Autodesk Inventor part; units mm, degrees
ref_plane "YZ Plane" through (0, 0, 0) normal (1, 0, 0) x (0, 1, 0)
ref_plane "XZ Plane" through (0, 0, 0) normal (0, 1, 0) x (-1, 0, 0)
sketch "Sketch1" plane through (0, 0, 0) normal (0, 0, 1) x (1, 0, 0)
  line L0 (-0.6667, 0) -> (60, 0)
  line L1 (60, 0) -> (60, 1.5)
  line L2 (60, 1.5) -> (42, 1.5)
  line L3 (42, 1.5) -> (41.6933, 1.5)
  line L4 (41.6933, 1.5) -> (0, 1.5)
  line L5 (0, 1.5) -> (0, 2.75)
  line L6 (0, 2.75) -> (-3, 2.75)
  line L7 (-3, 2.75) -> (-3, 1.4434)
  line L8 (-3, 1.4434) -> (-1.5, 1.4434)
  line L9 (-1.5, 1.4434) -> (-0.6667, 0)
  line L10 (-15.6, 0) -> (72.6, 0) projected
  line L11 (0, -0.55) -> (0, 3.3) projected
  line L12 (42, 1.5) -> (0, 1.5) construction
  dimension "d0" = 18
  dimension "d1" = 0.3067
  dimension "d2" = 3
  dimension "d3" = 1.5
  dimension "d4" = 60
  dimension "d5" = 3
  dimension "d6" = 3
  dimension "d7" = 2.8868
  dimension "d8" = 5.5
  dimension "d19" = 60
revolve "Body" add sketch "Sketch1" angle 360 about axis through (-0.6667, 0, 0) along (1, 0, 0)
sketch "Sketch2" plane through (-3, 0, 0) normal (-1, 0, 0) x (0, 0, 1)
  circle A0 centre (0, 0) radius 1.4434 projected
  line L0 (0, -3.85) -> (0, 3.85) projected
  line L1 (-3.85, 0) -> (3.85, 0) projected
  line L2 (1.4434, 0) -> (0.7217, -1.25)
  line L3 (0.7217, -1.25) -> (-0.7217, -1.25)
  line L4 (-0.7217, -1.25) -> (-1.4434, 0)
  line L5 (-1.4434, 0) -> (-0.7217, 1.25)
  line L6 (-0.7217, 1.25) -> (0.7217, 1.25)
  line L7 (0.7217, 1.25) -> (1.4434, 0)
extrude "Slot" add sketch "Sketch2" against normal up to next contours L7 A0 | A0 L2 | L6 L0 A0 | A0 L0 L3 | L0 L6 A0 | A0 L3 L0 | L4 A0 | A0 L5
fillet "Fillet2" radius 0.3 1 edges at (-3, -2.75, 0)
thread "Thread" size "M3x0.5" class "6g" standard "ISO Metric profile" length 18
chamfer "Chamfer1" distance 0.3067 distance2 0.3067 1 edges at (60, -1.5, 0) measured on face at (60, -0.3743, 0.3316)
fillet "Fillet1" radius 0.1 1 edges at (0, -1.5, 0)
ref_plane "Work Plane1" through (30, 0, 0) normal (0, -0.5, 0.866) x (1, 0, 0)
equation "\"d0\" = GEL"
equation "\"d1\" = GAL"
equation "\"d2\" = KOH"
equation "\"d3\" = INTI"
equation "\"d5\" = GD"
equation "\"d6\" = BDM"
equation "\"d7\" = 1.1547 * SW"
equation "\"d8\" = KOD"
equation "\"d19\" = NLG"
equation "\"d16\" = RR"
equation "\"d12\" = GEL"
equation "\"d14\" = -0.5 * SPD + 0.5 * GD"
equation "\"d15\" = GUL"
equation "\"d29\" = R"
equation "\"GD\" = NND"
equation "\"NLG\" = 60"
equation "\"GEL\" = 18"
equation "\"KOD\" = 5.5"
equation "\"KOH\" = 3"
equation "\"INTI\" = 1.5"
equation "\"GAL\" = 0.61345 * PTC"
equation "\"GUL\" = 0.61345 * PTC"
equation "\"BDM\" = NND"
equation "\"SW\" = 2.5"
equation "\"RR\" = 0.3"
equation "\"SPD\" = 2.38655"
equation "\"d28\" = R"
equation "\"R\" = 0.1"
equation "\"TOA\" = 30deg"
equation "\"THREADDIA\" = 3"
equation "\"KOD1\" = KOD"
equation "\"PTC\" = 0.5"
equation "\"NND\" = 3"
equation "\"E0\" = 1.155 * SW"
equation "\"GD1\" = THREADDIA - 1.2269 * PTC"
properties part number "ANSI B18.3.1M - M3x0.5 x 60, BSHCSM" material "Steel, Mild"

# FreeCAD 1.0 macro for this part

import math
import FreeCAD as App
import Part
import Sketcher
Q = App.Units.Quantity


def edges_at(feature, points):
    """Names of the edges that pass closest to the given points."""
    edges = feature.Shape.Edges
    near = lambda p: min(range(len(edges)), key=lambda i: edges[i].distToShape(Part.Vertex(*p))[0])
    return sorted({f"Edge{near(p) + 1}" for p in points})


def add_polygon(sketch, points):
    """Adds a closed chain of lines whose ends are joined by coincident constraints."""
    first, n = sketch.GeometryCount, len(points)
    for a, b in zip(points, points[1:] + points[:1]):
        sketch.addGeometry(Part.LineSegment(App.Vector(*a, 0), App.Vector(*b, 0)), False)
    for i in range(n):
        sketch.addConstraint(Sketcher.Constraint("Coincident", first + i, 2, first + (i + 1) % n, 1))

doc = App.newDocument("Part")
params = doc.addObject("Spreadsheet::Sheet", "Params")
for row, (alias, value) in enumerate([
    ("sketch1_width", "60 mm"),
    ("sketch1_width2", "3 mm"),
    ("sketch1_width3", "1.5 mm"),
    ("sketch1_height", "1.25 mm"),
    ("revolution_angle", "360 deg"),
    ("fillet_radius", "0.3 mm"),
    ("chamfer_size", "0.3067 mm"),
    ("chamfer_size2", "0.3067 mm"),
    ("fillet2_radius", "0.1 mm"),
], start=1):
    params.set(f"A{row}", alias)
    params.set(f"B{row}", "=" + value)
    params.setAlias(f"B{row}", alias)

body = doc.addObject("PartDesign::Body", "Body")

sketch1 = body.newObject("Sketcher::SketchObject", "Sketch")
sketch1.AttachmentSupport = (doc.getObject("XY_Plane"), [""])
sketch1.MapMode = "FlatFace"
add_polygon(sketch1, [(-1.5, 1.4), (-0.7, 0), (60, 0), (60, 1.5), (0, 1.5), (0, 2.8), (-3, 2.8), (-3, 1.4)])
sketch1.addConstraint([
    Sketcher.Constraint("Horizontal", 1),
    Sketcher.Constraint("Vertical", 2),
    Sketcher.Constraint("Horizontal", 3),
    Sketcher.Constraint("Vertical", 4),
    Sketcher.Constraint("Horizontal", 5),
    Sketcher.Constraint("Vertical", 6),
    Sketcher.Constraint("Horizontal", 7),
    Sketcher.Constraint("PointOnObject", 0, 2, -1),
    Sketcher.Constraint("PointOnObject", 3, 2, -2),
    Sketcher.Constraint("Equal", 7, 2),
    Sketcher.Constraint("DistanceX", 3, 2, 3, 1, Q("60 mm")),
    Sketcher.Constraint("DistanceX", 5, 2, 5, 1, Q("3 mm")),
    Sketcher.Constraint("DistanceX", 7, 1, 7, 2, Q("1.5 mm")),
    Sketcher.Constraint("DistanceY", 4, 1, 4, 2, Q("1.25 mm")),
    Sketcher.Constraint("DistanceX", 1, 1, 1, 2, Q("60.6667 mm")),
    Sketcher.Constraint("DistanceY", 6, 2, 6, 1, Q("1.3066 mm")),
])
sketch1.setExpression("Constraints[18]", "Params.sketch1_width")
sketch1.setExpression("Constraints[19]", "Params.sketch1_width2")
sketch1.setExpression("Constraints[20]", "Params.sketch1_width3")
sketch1.setExpression("Constraints[21]", "Params.sketch1_height")
revolution = body.newObject("PartDesign::Revolution", "Revolution")
revolution.Profile = sketch1
revolution.ReferenceAxis = (sketch1, ["H_Axis"])
revolution.setExpression("Angle", "Params.revolution_angle")

sketch2 = body.newObject("Sketcher::SketchObject", "Sketch001")
sketch2.AttachmentSupport = (doc.getObject("YZ_Plane"), [""])
sketch2.MapMode = "FlatFace"
sketch2.AttachmentOffset = App.Placement(App.Vector(0, 0, -3), App.Rotation())
sketch2.addGeometry([
    Part.LineSegment(App.Vector(1.2, 0.7, 0), App.Vector(0, 1.4, 0)),
    Part.ArcOfCircle(Part.Circle(App.Vector(0, 0, 0), App.Vector(0, 0, 1), 1.4), math.radians(30), math.radians(90)),
    Part.ArcOfCircle(Part.Circle(App.Vector(0, 0, 0), App.Vector(0, 0, 1), 1.4), math.radians(90), math.radians(150)),
    Part.LineSegment(App.Vector(0, 1.4, 0), App.Vector(-1.2, 0.7, 0)),
    Part.ArcOfCircle(Part.Circle(App.Vector(0, 0, 0), App.Vector(0, 0, 1), 1.4), math.radians(-30), math.radians(30)),
    Part.LineSegment(App.Vector(1.2, 0.7, 0), App.Vector(1.2, -0.7, 0)),
    Part.LineSegment(App.Vector(-1.2, 0.7, 0), App.Vector(-1.2, -0.7, 0)),
    Part.ArcOfCircle(Part.Circle(App.Vector(0, 0, 0), App.Vector(0, 0, 1), 1.4), math.radians(150), math.radians(210)),
    Part.LineSegment(App.Vector(-1.2, -0.7, 0), App.Vector(0, -1.4, 0)),
    Part.ArcOfCircle(Part.Circle(App.Vector(0, 0, 0), App.Vector(0, 0, 1), 1.4), math.radians(-150), math.radians(-90)),
    Part.ArcOfCircle(Part.Circle(App.Vector(0, 0, 0), App.Vector(0, 0, 1), 1.4), math.radians(-90), math.radians(-30)),
    Part.LineSegment(App.Vector(0, -1.4, 0), App.Vector(1.2, -0.7, 0)),
], False)
sketch2.addConstraint([
    Sketcher.Constraint("Coincident", 0, 1, 1, 1),
    Sketcher.Constraint("Coincident", 1, 2, 0, 2),
    Sketcher.Constraint("Coincident", 2, 1, 3, 1),
    Sketcher.Constraint("Coincident", 3, 2, 2, 2),
    Sketcher.Constraint("Coincident", 4, 1, 5, 2),
    Sketcher.Constraint("Coincident", 5, 1, 4, 2),
    Sketcher.Constraint("Coincident", 6, 1, 7, 1),
    Sketcher.Constraint("Coincident", 7, 2, 6, 2),
    Sketcher.Constraint("Coincident", 8, 1, 9, 1),
    Sketcher.Constraint("Coincident", 9, 2, 8, 2),
    Sketcher.Constraint("Coincident", 10, 1, 11, 1),
    Sketcher.Constraint("Coincident", 11, 2, 10, 2),
    Sketcher.Constraint("Vertical", 5),
    Sketcher.Constraint("Vertical", 6),
    Sketcher.Constraint("Coincident", 1, 3, -1, 1),
    Sketcher.Constraint("Coincident", 2, 3, -1, 1),
    Sketcher.Constraint("Coincident", 4, 3, -1, 1),
    Sketcher.Constraint("Coincident", 7, 3, -1, 1),
    Sketcher.Constraint("Coincident", 9, 3, -1, 1),
    Sketcher.Constraint("Coincident", 10, 3, -1, 1),
    Sketcher.Constraint("Coincident", 2, 1, 1, 2),
    Sketcher.Constraint("Coincident", 5, 1, 0, 1),
    Sketcher.Constraint("Coincident", 6, 1, 3, 2),
    Sketcher.Constraint("Coincident", 8, 1, 7, 2),
    Sketcher.Constraint("Coincident", 10, 1, 9, 2),
    Sketcher.Constraint("PointOnObject", 1, 2, -2),
    Sketcher.Constraint("PointOnObject", 9, 2, -2),
    Sketcher.Constraint("Parallel", 0, 8),
    Sketcher.Constraint("Parallel", 3, 11),
    Sketcher.Constraint("Angle", 0, Q("149.9996 deg")),
    Sketcher.Constraint("Radius", 1, Q("1.4434 mm")),
])
pad1 = body.newObject("PartDesign::Pad", "Pad")
pad1.Profile = sketch2
pad1.Type = "UpToFirst"
doc.recompute()

fillet = body.newObject("PartDesign::Fillet", "Fillet")
fillet.Base = (pad1, edges_at(pad1, [(-3, -2.75, 0)]))
fillet.setExpression("Radius", "Params.fillet_radius")
doc.recompute()

chamfer = body.newObject("PartDesign::Chamfer", "Chamfer")
chamfer.Base = (fillet, edges_at(fillet, [(60, -1.5, 0)]))
chamfer.ChamferType = "Two distances"
chamfer.setExpression("Size", "Params.chamfer_size")
chamfer.setExpression("Size2", "Params.chamfer_size2")
doc.recompute()

fillet2 = body.newObject("PartDesign::Fillet", "Fillet001")
fillet2.Base = (chamfer, edges_at(chamfer, [(0, -1.5, 0)]))
fillet2.setExpression("Radius", "Params.fillet2_radius")

doc.recompute()
